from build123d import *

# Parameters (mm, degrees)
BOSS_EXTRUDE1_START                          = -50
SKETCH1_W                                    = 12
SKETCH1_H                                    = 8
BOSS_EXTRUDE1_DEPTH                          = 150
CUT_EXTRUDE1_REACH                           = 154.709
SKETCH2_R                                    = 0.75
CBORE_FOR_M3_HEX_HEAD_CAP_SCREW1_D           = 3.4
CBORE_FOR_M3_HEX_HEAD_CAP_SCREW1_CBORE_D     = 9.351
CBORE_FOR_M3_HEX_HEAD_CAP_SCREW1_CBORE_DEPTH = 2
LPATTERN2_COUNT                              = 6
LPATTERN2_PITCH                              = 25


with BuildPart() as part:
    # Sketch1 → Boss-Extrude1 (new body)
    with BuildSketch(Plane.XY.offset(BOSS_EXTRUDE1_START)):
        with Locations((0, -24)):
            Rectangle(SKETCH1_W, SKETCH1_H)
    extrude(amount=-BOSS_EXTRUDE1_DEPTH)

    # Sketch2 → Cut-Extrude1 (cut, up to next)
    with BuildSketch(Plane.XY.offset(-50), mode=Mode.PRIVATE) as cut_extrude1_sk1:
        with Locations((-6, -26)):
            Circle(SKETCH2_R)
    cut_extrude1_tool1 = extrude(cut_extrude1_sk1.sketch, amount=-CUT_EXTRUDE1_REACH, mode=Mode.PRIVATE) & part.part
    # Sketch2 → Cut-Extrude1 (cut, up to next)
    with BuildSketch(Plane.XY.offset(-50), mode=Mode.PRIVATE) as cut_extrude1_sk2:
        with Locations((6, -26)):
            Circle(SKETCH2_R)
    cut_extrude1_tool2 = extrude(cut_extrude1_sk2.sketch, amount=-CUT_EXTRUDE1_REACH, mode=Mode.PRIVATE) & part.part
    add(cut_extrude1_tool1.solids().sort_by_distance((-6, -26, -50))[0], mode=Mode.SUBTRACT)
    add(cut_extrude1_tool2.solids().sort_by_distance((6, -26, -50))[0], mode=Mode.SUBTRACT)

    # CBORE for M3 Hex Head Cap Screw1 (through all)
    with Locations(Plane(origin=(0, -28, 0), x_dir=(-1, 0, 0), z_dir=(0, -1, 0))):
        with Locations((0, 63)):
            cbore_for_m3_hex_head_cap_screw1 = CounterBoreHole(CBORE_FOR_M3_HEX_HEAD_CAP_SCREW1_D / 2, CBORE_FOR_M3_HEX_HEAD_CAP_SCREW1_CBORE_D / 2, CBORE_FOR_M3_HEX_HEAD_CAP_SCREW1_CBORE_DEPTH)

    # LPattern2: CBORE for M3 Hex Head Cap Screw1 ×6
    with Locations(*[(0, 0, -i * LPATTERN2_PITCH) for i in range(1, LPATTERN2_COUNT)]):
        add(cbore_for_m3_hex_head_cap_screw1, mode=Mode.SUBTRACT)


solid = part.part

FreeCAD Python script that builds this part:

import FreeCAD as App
import Part
import Sketcher


def add_polygon(sketch, points):
    """Adds a closed chain of lines whose ends are joined by coincident constraints."""
    first, n = sketch.GeometryCount, len(points)
    for a, b in zip(points, points[1:] + points[:1]):
        sketch.addGeometry(Part.LineSegment(App.Vector(*a, 0), App.Vector(*b, 0)), False)
    for i in range(n):
        sketch.addConstraint(Sketcher.Constraint("Coincident", first + i, 2, first + (i + 1) % n, 1))

doc = App.newDocument("Part")
body = doc.addObject("PartDesign::Body", "Body")

sketch1 = body.newObject("Sketcher::SketchObject", "Sketch")
sketch1.AttachmentSupport = (doc.getObject("XY_Plane"), [""])
sketch1.MapMode = "FlatFace"
sketch1.AttachmentOffset = App.Placement(App.Vector(0, 0, -50), App.Rotation())
add_polygon(sketch1, [(-6, -20), (-6, -28), (6, -28), (6, -20)])
sketch1.addConstraint(Sketcher.Constraint("Vertical", 0))
sketch1.addConstraint(Sketcher.Constraint("Horizontal", 1))
sketch1.addConstraint(Sketcher.Constraint("Vertical", 2))
sketch1.addConstraint(Sketcher.Constraint("Horizontal", 3))
sketch1.addConstraint(Sketcher.Constraint("DistanceX", 1, 1, 1, 2, 12.0))
sketch1.addConstraint(Sketcher.Constraint("DistanceY", 0, 2, 0, 1, 8.0))
sketch1.addConstraint(Sketcher.Constraint("DistanceX", 0, 2, -1, 1, 6.0))
sketch1.addConstraint(Sketcher.Constraint("DistanceY", 0, 2, -1, 1, 28.0))
pad1 = body.newObject("PartDesign::Pad", "Pad")
pad1.Profile = sketch1
pad1.Length = 150
pad1.Reversed = True

sketch2 = body.newObject("Sketcher::SketchObject", "Sketch001")
sketch2.AttachmentSupport = (doc.getObject("XY_Plane"), [""])
sketch2.MapMode = "FlatFace"
sketch2.AttachmentOffset = App.Placement(App.Vector(0, 0, -50), App.Rotation())
sketch2.addGeometry(Part.Circle(App.Vector(-6, -26, 0), App.Vector(0, 0, 1), 0.8), False)
sketch2.addConstraint(Sketcher.Constraint("Diameter", 0, 1.5))
sketch2.addConstraint(Sketcher.Constraint("DistanceX", 0, 3, -1, 1, 6.0))
sketch2.addConstraint(Sketcher.Constraint("DistanceY", 0, 3, -1, 1, 26.0))
pocket1 = body.newObject("PartDesign::Pocket", "Pocket")
pocket1.Profile = sketch2
pocket1.Type = "UpToFirst"

sketch3 = body.newObject("Sketcher::SketchObject", "Sketch002")
sketch3.AttachmentSupport = (doc.getObject("XY_Plane"), [""])
sketch3.MapMode = "FlatFace"
sketch3.AttachmentOffset = App.Placement(App.Vector(0, 0, -50), App.Rotation())
sketch3.addGeometry(Part.Circle(App.Vector(6, -26, 0), App.Vector(0, 0, 1), 0.8), False)
sketch3.addConstraint(Sketcher.Constraint("Diameter", 0, 1.5))
sketch3.addConstraint(Sketcher.Constraint("DistanceX", -1, 1, 0, 3, 6.0))
sketch3.addConstraint(Sketcher.Constraint("DistanceY", 0, 3, -1, 1, 26.0))
pocket2 = body.newObject("PartDesign::Pocket", "Pocket001")
pocket2.Profile = sketch3
pocket2.Type = "UpToFirst"

sketch4 = body.newObject("Sketcher::SketchObject", "Sketch003")
sketch4.AttachmentSupport = (doc.getObject("XZ_Plane"), [""])
sketch4.MapMode = "FlatFace"
sketch4.AttachmentOffset = App.Placement(App.Vector(0, 0, 28), App.Rotation())
sketch4.addGeometry(Part.Circle(App.Vector(0, -63, 0), App.Vector(0, 0, 1), 1.7), False)
sketch4.addConstraint(Sketcher.Constraint("PointOnObject", 0, 3, -2))
sketch4.addConstraint(Sketcher.Constraint("Diameter", 0, 3.4))
sketch4.addConstraint(Sketcher.Constraint("DistanceY", 0, 3, -1, 1, 63.0))
doc.recompute()
hole = body.newObject("PartDesign::Hole", "Hole")
hole.Profile = sketch4
hole.ThreadType = "None"
hole.Diameter = 3.4
hole.DepthType = "ThroughAll"
hole.HoleCutType = "Counterbore"
hole.HoleCutDiameter = 9.351
hole.HoleCutDepth = 2
doc.recompute()

linearpattern = body.newObject("PartDesign::LinearPattern", "LinearPattern")
linearpattern.Originals = [hole]
linearpattern.Direction = (doc.getObject("Z_Axis"), [""])
linearpattern.Mode = "offset"
linearpattern.Offset = 25
linearpattern.Occurrences = 6
linearpattern.Reversed = True
body.Tip = linearpattern

doc.recompute()
